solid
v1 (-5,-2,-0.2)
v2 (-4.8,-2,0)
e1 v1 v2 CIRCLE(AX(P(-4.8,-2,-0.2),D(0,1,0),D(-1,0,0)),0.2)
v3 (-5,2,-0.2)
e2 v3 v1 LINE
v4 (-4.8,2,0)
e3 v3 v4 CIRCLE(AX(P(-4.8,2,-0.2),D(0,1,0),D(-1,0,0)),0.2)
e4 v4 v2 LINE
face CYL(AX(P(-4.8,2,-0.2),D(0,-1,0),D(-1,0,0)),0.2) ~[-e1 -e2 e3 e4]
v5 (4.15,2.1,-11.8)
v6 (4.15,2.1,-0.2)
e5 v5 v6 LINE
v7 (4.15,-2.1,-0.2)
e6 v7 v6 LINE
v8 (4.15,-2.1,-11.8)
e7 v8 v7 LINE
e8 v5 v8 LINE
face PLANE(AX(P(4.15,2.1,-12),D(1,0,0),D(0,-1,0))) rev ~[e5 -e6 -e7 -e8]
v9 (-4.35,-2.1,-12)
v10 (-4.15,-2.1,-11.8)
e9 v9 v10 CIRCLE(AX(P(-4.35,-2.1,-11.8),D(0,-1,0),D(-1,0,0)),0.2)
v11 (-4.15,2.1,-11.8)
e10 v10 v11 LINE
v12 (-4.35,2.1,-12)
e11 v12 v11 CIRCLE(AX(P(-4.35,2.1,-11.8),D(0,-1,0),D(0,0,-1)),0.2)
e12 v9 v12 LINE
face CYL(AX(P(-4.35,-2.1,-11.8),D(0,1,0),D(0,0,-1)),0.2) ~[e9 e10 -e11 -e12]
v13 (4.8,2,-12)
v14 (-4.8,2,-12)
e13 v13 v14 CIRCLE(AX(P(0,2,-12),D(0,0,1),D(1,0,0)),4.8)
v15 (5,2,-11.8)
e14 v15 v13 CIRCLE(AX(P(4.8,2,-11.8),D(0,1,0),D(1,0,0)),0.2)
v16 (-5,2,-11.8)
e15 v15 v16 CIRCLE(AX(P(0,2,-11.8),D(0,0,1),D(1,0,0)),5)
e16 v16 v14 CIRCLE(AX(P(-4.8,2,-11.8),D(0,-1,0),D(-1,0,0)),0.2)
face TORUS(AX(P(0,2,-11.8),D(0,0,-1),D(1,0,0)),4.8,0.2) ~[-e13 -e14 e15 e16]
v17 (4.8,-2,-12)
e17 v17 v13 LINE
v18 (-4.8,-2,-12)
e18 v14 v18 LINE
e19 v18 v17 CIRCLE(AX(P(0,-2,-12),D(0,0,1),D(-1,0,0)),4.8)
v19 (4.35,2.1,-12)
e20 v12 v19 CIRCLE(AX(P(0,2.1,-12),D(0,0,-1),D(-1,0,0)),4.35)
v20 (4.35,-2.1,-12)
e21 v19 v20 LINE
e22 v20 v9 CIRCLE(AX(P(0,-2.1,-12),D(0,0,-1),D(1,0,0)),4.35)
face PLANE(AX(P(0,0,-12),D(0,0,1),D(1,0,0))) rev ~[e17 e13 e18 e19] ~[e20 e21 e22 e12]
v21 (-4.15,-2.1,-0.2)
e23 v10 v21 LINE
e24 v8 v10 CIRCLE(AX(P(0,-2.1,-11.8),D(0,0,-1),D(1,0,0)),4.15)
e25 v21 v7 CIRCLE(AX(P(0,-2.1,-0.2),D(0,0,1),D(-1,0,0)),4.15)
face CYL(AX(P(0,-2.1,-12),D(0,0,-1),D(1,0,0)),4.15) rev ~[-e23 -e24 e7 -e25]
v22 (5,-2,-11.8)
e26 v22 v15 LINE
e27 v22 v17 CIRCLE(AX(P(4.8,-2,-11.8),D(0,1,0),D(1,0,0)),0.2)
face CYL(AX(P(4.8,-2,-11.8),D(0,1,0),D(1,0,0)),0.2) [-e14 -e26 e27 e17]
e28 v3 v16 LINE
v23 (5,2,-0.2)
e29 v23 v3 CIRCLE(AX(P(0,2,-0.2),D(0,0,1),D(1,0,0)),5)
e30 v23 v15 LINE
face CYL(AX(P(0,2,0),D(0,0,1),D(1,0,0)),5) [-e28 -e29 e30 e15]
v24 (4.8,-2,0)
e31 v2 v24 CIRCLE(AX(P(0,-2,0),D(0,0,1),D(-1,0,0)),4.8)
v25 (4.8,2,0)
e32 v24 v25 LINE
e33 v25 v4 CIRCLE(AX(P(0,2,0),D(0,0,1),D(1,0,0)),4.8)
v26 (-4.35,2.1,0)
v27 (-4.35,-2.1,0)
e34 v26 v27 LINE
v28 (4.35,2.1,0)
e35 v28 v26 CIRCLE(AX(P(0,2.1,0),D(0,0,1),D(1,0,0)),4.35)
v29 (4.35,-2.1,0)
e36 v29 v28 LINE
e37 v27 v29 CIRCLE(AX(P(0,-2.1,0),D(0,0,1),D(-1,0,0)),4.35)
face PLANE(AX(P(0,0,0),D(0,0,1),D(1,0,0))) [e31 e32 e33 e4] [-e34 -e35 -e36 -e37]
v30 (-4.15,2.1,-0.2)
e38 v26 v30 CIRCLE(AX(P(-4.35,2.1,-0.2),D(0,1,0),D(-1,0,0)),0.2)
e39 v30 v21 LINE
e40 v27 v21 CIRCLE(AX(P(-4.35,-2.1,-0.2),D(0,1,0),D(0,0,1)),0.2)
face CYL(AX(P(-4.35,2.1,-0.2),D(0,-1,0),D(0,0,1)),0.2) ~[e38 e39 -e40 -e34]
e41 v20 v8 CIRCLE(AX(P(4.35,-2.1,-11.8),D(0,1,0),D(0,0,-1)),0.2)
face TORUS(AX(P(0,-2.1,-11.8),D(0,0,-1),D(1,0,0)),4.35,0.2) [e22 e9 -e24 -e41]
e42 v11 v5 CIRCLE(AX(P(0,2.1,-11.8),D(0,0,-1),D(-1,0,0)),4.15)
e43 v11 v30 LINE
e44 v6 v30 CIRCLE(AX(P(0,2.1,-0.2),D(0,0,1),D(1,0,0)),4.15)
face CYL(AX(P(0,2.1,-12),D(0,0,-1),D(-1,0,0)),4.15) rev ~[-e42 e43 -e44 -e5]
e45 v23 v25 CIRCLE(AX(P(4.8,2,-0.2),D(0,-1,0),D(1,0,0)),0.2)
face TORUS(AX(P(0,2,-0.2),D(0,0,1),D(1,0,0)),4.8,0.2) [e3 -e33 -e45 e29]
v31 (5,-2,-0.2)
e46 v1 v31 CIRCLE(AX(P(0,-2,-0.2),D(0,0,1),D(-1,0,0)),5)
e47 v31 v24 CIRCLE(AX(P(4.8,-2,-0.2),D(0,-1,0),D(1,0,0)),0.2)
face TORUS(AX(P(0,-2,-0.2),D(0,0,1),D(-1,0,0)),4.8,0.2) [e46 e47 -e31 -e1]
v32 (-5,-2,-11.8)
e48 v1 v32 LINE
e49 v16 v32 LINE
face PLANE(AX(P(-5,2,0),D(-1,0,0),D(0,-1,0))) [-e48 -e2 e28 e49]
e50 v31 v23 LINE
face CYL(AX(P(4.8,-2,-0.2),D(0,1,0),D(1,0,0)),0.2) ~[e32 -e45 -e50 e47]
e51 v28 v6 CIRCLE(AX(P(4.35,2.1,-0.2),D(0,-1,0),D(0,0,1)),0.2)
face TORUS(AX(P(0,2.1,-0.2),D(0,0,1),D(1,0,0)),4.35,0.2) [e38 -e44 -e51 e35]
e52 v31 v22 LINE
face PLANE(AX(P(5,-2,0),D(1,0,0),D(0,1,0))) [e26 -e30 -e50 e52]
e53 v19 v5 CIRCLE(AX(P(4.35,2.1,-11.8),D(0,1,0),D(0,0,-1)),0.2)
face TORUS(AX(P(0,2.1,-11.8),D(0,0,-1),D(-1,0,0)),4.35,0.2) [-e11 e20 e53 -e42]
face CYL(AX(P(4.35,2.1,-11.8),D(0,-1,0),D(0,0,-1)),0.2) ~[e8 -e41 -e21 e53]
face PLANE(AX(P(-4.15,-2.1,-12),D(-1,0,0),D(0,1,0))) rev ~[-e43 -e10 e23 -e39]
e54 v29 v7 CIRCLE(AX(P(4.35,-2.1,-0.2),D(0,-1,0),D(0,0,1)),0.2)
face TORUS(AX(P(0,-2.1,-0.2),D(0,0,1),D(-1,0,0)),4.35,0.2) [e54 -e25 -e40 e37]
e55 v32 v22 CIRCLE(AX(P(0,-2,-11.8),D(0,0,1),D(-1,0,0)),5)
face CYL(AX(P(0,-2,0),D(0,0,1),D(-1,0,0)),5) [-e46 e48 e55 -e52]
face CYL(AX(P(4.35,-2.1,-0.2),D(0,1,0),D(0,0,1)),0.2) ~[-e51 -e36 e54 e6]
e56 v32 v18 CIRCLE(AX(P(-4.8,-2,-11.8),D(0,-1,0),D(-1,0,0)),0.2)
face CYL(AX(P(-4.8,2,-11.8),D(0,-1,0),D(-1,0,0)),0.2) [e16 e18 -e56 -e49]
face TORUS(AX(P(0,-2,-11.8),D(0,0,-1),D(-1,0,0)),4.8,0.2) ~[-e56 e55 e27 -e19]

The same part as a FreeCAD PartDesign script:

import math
import FreeCAD as App
import Part
import Sketcher
from FreeCAD import Vector
Q = App.Units.Quantity


def edges_at(feature, points):
    """Names of the edges that pass closest to the given points."""
    edges = feature.Shape.Edges
    near = lambda p: min(range(len(edges)), key=lambda i: edges[i].distToShape(Part.Vertex(*p))[0])
    return sorted({f"Edge{near(p) + 1}" for p in points})

doc = App.newDocument("Part")
params = doc.addObject("Spreadsheet::Sheet", "Params")
for row, (alias, value) in enumerate([
    ("sketch1_radius", "5 mm"),
    ("sketch1_height", "4 mm"),
    ("pad1_length", "12 mm"),
    ("sketch2_radius", "4.15 mm"),
    ("sketch2_height", "4.2 mm"),
    ("fillet_radius", "0.2 mm"),
    ("fillet2_radius", "0.2 mm"),
], start=1):
    params.set(f"A{row}", alias)
    params.set(f"B{row}", "=" + value)
    params.setAlias(f"B{row}", alias)

body = doc.addObject("PartDesign::Body", "Body")

sketch1 = doc.addObject("Sketcher::SketchObject", "Sketch")
body.addObject(sketch1)
sketch1.AttachmentSupport = (doc.XY_Plane, [""])
sketch1.MapMode = "FlatFace"
sketch1.addGeometry([
    Part.ArcOfCircle(Part.Circle(Vector(0, 2, 0), Vector(0, 0, 1), 5), math.radians(0), math.radians(180)),
    Part.LineSegment(Vector(-5, 2, 0), Vector(-5, -2, 0)),
    Part.ArcOfCircle(Part.Circle(Vector(0, -2, 0), Vector(0, 0, 1), 5), math.radians(180), math.radians(360)),
    Part.LineSegment(Vector(5, -2, 0), Vector(5, 2, 0)),
], False)
sketch1.addConstraint([
    Sketcher.Constraint("Tangent", 0, 2, 1, 1),
    Sketcher.Constraint("Tangent", 1, 2, 2, 1),
    Sketcher.Constraint("Tangent", 2, 2, 3, 1),
    Sketcher.Constraint("Tangent", 3, 2, 0, 1),
    Sketcher.Constraint("Vertical", 1),
    Sketcher.Constraint("Vertical", 3),
    Sketcher.Constraint("Symmetric", 0, 3, 2, 3, -1, 1),
    Sketcher.Constraint("Radius", 0, Q("5 mm")),
    Sketcher.Constraint("DistanceY", 1, 2, 1, 1, Q("4 mm")),
])
sketch1.setExpression("Constraints[7]", "Params.sketch1_radius")
sketch1.setExpression("Constraints[8]", "Params.sketch1_height")
pad1 = doc.addObject("PartDesign::Pad", "Pad")
body.addObject(pad1)
pad1.Profile = sketch1
pad1.setExpression("Length", "Params.pad1_length")
pad1.Reversed = True

sketch2 = doc.addObject("Sketcher::SketchObject", "Sketch001")
body.addObject(sketch2)
sketch2.AttachmentSupport = (doc.XY_Plane, [""])
sketch2.MapMode = "FlatFace"
sketch2.AttachmentOffset = App.Placement(Vector(0, 0, -12), App.Rotation())
sketch2.addGeometry([
    Part.ArcOfCircle(Part.Circle(Vector(0, -2.1, 0), Vector(0, 0, 1), 4.2), math.radians(180), math.radians(360)),
    Part.LineSegment(Vector(-4.2, -2.1, 0), Vector(-4.2, 2.1, 0)),
    Part.ArcOfCircle(Part.Circle(Vector(0, 2.1, 0), Vector(0, 0, 1), 4.2), math.radians(0), math.radians(180)),
    Part.LineSegment(Vector(4.2, 2.1, 0), Vector(4.2, -2.1, 0)),
], False)
sketch2.addConstraint([
    Sketcher.Constraint("Tangent", 0, 1, 1, 1),
    Sketcher.Constraint("Tangent", 1, 2, 2, 2),
    Sketcher.Constraint("Tangent", 2, 1, 3, 1),
    Sketcher.Constraint("Tangent", 3, 2, 0, 2),
    Sketcher.Constraint("Vertical", 1),
    Sketcher.Constraint("Vertical", 3),
    Sketcher.Constraint("Symmetric", 0, 3, 2, 3, -1, 1),
    Sketcher.Constraint("Radius", 0, Q("4.15 mm")),
    Sketcher.Constraint("DistanceY", 1, 1, 1, 2, Q("4.2 mm")),
])
sketch2.setExpression("Constraints[7]", "Params.sketch2_radius")
sketch2.setExpression("Constraints[8]", "Params.sketch2_height")
pocket1 = doc.addObject("PartDesign::Pocket", "Pocket")
body.addObject(pocket1)
pocket1.Profile = sketch2
pocket1.Type = "ThroughAll"
pocket1.Reversed = True
doc.recompute()

fillet = doc.addObject("PartDesign::Fillet", "Fillet")
body.addObject(fillet)
fillet.Base = (pocket1, edges_at(pocket1, [
    (0, 7, 0),
    (5, 0, 0),
    (-5, 0, 0),
    (0, -7, 0),
    (4.15, 0, 0),
    (0, 6.25, 0),
    (-4.15, 0, 0),
    (0, -6.25, 0),
]))
fillet.setExpression("Radius", "Params.fillet_radius")
doc.recompute()

fillet2 = doc.addObject("PartDesign::Fillet", "Fillet001")
body.addObject(fillet2)
fillet2.Base = (fillet, edges_at(fillet, [
    (0, 7, -12),
    (5, 0, -12),
    (-5, 0, -12),
    (0, -7, -12),
    (4.15, 0, -12),
    (0, 6.25, -12),
    (-4.15, 0, -12),
    (0, -6.25, -12),
]))
fillet2.setExpression("Radius", "Params.fillet2_radius")

doc.recompute()
